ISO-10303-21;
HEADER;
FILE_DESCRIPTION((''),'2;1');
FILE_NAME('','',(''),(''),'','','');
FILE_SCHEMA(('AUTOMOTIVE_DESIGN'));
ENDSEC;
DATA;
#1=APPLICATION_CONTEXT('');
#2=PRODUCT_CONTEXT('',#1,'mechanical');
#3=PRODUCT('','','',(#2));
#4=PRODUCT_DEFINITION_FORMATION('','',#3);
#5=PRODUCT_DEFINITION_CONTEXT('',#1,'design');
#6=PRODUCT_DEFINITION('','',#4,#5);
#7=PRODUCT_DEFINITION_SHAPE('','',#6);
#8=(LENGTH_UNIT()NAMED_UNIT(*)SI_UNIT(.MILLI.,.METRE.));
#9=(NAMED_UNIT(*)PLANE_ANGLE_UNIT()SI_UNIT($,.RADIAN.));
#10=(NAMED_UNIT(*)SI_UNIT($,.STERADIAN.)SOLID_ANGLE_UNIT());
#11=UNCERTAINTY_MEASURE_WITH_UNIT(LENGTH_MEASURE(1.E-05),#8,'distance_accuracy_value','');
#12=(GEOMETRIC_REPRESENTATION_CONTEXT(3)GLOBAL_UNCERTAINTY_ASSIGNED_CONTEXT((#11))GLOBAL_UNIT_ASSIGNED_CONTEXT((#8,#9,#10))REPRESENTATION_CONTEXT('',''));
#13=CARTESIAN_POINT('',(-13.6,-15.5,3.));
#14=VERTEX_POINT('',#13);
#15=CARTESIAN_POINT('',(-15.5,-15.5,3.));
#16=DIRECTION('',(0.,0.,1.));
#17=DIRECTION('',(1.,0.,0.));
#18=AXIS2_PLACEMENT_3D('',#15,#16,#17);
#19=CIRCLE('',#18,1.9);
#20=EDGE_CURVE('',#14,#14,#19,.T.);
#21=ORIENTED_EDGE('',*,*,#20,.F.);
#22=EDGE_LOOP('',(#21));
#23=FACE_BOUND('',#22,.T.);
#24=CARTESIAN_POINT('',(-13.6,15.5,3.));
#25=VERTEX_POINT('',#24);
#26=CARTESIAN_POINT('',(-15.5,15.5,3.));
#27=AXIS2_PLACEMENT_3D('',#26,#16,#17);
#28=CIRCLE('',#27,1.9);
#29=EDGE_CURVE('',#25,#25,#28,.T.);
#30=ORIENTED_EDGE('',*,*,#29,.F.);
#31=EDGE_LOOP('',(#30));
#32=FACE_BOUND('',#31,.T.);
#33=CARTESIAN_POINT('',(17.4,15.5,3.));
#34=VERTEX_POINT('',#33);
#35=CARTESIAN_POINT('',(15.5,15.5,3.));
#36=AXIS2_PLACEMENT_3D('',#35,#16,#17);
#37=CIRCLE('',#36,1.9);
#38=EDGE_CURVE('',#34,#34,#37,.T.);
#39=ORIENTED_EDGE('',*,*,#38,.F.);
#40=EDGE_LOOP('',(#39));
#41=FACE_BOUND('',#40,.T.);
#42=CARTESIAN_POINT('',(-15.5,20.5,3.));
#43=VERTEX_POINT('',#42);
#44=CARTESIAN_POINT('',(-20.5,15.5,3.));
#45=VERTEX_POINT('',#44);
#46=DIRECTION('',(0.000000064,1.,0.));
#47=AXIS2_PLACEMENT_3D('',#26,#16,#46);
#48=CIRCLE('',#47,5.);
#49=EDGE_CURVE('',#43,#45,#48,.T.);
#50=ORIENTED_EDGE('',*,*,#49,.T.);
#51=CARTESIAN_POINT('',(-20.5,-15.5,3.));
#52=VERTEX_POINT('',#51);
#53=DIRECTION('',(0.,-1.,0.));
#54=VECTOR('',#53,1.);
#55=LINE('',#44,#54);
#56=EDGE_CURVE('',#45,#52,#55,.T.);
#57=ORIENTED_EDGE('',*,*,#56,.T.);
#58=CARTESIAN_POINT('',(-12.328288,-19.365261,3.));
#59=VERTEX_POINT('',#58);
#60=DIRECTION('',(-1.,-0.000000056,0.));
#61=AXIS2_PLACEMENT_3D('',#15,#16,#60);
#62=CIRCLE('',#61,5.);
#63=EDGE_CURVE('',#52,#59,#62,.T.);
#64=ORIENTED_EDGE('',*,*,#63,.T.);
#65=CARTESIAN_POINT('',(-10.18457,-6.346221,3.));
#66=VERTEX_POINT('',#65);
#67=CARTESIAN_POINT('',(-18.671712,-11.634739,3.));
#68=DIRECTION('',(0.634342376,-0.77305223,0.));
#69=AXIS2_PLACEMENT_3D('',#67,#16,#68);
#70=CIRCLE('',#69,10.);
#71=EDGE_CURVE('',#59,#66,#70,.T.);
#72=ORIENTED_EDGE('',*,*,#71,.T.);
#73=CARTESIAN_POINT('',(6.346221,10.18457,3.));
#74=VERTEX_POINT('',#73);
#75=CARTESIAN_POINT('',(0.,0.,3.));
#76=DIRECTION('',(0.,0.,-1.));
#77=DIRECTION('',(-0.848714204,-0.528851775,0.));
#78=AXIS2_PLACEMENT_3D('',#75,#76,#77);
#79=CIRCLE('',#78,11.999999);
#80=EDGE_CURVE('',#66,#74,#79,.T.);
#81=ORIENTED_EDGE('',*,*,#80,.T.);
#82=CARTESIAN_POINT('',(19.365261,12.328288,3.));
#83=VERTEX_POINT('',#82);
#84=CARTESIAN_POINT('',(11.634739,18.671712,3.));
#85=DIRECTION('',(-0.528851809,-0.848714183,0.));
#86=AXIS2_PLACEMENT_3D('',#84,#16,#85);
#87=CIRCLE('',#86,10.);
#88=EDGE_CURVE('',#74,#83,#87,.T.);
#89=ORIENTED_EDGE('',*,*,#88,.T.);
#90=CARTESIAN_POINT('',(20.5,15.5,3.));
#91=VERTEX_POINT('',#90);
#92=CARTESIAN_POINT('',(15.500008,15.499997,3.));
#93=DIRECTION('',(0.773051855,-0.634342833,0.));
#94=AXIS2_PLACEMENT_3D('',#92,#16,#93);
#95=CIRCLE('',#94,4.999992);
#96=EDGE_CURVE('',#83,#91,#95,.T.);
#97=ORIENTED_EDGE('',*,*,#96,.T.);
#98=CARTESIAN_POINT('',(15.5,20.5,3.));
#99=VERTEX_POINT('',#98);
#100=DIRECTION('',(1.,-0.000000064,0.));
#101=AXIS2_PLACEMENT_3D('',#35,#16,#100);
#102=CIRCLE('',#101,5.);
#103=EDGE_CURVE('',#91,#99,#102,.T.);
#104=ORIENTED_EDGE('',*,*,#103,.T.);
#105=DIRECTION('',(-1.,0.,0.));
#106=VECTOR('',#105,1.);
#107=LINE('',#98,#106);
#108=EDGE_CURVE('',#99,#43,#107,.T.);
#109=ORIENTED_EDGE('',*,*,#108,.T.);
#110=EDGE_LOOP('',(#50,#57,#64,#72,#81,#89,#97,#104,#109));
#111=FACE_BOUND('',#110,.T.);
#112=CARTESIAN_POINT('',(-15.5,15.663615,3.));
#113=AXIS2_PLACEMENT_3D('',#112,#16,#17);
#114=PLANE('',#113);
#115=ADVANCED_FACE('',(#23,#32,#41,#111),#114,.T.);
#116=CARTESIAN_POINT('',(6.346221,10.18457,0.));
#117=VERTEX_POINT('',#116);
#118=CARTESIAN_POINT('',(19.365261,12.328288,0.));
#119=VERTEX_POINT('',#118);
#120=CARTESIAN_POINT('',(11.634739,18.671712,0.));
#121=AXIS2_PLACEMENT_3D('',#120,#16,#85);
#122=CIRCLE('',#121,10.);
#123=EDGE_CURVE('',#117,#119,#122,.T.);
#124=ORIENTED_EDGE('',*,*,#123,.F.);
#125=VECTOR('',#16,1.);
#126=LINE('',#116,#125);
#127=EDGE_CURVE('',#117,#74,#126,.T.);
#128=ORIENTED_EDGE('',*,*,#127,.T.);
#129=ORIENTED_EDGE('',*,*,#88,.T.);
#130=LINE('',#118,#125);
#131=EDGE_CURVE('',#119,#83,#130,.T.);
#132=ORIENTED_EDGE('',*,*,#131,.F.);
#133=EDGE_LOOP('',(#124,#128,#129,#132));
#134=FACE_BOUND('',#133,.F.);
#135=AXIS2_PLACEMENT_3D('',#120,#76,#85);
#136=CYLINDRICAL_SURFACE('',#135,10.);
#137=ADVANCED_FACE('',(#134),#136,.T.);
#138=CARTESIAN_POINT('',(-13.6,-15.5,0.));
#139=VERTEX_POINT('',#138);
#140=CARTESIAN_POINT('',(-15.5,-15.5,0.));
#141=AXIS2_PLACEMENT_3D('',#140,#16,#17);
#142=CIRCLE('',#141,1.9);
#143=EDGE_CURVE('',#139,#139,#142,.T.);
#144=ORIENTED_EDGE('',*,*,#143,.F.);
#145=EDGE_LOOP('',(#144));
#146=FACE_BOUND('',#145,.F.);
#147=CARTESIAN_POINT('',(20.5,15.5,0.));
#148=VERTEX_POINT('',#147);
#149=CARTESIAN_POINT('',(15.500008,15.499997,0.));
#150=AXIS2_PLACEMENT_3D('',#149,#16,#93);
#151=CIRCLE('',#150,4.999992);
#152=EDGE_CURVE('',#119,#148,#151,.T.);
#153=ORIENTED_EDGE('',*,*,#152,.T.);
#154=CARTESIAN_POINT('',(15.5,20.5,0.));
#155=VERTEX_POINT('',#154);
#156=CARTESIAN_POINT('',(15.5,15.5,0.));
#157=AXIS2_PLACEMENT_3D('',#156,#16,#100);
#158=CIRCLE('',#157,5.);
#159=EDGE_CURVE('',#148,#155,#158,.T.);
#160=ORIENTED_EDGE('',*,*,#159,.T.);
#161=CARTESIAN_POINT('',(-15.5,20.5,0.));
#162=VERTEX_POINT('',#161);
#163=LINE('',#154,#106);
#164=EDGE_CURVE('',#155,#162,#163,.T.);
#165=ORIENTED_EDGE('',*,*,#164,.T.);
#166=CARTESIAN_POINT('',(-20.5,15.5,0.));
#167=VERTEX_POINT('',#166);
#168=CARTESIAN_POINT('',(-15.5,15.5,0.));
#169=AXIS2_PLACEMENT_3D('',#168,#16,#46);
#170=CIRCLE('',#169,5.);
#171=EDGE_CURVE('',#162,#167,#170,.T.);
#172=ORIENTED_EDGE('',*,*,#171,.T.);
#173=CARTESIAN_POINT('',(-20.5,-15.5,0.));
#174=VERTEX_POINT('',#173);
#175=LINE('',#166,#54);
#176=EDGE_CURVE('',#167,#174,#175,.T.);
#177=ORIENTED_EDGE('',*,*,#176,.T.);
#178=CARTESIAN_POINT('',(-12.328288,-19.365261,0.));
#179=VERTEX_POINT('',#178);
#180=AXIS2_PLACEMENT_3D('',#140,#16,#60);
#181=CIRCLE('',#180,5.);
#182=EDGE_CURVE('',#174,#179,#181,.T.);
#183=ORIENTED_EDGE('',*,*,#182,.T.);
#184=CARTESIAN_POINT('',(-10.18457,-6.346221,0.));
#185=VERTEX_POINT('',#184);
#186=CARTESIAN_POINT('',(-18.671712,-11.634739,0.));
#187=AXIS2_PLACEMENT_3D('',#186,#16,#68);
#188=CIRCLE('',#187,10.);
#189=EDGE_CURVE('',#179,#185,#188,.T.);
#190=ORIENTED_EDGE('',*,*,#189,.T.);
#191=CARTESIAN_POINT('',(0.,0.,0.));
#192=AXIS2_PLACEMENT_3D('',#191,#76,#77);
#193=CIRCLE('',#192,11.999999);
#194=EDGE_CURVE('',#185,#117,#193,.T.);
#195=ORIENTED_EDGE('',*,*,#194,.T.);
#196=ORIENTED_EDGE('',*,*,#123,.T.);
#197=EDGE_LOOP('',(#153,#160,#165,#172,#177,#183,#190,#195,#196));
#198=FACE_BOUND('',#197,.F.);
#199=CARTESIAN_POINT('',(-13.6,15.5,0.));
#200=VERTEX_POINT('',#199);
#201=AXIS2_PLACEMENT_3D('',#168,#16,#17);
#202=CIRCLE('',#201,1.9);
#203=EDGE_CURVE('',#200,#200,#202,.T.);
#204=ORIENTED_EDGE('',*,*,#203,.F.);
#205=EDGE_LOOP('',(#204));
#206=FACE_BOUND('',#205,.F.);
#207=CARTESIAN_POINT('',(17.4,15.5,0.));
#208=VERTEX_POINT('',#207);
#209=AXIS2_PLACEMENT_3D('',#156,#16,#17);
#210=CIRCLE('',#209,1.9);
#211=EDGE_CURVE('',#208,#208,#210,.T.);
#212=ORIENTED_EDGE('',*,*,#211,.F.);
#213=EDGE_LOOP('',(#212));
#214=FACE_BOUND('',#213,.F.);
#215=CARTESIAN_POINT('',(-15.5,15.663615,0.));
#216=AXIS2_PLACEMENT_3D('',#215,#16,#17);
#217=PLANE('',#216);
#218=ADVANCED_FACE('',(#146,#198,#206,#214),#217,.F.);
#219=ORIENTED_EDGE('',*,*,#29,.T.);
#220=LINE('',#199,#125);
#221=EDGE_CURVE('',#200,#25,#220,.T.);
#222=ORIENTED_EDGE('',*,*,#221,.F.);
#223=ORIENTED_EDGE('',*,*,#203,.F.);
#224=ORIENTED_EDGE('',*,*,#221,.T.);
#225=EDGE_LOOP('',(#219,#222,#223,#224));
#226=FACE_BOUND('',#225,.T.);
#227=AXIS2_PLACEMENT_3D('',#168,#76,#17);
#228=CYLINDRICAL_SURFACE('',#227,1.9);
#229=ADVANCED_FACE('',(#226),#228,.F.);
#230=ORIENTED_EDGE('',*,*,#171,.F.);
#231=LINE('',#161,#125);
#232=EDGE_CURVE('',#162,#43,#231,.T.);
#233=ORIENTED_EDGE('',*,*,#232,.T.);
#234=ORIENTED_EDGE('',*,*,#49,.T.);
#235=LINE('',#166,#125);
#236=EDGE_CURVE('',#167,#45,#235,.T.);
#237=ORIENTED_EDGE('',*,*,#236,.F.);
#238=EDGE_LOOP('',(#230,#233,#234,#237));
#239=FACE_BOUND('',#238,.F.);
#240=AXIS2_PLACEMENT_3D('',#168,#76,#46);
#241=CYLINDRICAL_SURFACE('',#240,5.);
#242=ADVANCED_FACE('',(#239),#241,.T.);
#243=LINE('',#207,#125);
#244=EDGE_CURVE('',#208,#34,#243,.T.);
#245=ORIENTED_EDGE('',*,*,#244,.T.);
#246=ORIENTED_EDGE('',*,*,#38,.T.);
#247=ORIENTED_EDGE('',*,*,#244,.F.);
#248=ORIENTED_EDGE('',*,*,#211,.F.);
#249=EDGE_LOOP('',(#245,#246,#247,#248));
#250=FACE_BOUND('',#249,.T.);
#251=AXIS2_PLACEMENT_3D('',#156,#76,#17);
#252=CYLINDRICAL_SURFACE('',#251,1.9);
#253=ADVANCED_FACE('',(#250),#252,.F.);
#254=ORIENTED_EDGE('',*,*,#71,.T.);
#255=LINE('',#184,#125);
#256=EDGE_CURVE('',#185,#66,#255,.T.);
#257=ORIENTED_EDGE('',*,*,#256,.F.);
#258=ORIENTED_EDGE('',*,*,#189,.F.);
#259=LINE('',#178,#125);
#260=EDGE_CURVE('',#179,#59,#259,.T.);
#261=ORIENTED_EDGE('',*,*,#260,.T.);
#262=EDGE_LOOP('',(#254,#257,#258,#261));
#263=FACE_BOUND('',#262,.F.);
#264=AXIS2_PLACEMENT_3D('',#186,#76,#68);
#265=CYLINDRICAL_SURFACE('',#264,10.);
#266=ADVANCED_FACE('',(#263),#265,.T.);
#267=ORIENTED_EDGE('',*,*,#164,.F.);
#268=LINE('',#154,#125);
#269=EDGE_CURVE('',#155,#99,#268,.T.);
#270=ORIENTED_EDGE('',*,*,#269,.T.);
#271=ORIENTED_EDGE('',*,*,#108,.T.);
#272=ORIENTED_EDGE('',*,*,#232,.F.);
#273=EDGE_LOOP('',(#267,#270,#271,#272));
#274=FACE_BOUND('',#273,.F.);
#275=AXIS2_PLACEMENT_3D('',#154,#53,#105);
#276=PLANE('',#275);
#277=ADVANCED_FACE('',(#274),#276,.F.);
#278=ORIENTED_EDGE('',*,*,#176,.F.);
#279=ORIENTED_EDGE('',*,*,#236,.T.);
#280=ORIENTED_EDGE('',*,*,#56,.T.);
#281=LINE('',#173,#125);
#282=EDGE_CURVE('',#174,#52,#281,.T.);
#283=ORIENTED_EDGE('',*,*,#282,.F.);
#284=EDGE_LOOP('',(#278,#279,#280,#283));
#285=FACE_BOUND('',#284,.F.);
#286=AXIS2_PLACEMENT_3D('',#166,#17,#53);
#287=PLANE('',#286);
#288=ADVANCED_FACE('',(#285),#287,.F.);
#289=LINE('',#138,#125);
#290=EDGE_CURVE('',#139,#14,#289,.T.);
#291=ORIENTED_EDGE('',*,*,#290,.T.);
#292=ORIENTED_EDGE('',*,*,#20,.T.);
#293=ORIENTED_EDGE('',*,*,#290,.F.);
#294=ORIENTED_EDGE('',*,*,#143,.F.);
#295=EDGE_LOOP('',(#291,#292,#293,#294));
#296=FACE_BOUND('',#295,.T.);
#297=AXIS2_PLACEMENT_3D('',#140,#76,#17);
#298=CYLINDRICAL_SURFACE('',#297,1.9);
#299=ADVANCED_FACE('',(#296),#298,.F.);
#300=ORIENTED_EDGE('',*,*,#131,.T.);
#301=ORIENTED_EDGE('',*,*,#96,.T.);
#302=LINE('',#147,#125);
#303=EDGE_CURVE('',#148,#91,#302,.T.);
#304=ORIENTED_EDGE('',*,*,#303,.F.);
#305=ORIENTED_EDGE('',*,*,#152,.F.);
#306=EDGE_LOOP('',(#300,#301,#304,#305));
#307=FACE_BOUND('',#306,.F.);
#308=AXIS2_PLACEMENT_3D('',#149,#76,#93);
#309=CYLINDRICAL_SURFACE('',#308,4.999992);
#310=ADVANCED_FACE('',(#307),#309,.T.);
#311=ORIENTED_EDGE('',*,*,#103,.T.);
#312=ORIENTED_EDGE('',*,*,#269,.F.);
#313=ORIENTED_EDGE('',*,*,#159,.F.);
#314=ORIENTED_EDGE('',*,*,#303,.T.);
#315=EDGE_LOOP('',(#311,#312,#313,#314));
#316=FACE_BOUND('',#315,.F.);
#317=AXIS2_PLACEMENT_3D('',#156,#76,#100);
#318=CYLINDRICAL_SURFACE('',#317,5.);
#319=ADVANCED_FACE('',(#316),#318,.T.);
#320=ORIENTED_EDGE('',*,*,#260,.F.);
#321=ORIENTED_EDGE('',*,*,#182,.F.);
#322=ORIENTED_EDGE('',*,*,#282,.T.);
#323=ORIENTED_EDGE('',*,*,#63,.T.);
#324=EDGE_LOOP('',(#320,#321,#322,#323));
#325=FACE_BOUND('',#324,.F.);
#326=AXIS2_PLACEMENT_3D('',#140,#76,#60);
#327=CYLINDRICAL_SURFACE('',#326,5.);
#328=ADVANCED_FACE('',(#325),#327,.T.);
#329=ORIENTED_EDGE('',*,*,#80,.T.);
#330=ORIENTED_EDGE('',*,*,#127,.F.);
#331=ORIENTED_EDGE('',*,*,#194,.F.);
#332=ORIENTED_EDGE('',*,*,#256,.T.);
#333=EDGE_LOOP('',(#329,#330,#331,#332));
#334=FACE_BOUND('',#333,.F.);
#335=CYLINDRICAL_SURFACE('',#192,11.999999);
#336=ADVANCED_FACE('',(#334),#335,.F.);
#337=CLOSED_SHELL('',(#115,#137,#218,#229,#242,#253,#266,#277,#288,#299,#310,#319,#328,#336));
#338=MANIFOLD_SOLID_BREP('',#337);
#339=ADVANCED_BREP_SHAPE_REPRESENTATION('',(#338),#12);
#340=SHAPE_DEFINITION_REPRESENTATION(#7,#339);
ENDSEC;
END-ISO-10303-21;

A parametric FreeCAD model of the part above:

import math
import FreeCAD as App
import Part
import Sketcher

doc = App.newDocument("Part")
body = doc.addObject("PartDesign::Body", "Body")

# Sketch on XY plane
sketch1 = body.newObject("Sketcher::SketchObject", "Sketch")
sketch1.AttachmentSupport = (doc.getObject("XY_Plane"), [""])
sketch1.MapMode = "FlatFace"
sketch1.addGeometry([
    Part.ArcOfCircle(Part.Circle(App.Vector(-15.5, 15.5, 0), App.Vector(0, 0, 1), 5), math.radians(89.999996), math.radians(180.000004)),  # 0
    Part.LineSegment(App.Vector(-20.5, 15.5, 0), App.Vector(-20.5, -15.5, 0)),  # 1
    Part.ArcOfCircle(Part.Circle(App.Vector(-15.5, -15.5, 0), App.Vector(0, 0, 1), 5), math.radians(-179.999997), math.radians(-50.628774)),  # 2
    Part.ArcOfCircle(Part.Circle(App.Vector(-18.671712, -11.634739, 0), App.Vector(0, 0, 1), 10), math.radians(-50.628773), math.radians(31.927909)),  # 3
    Part.ArcOfCircle(Part.Circle(App.Vector(0, 0, 0), App.Vector(0, 0, 1), 11.999999), math.radians(58.072093), math.radians(211.927907)),  # 4
    Part.ArcOfCircle(Part.Circle(App.Vector(11.634739, 18.671712, 0), App.Vector(0, 0, 1), 10), math.radians(-121.927909), math.radians(-39.371227)),  # 5
    Part.ArcOfCircle(Part.Circle(App.Vector(15.500008, 15.499997, 0), App.Vector(0, 0, 1), 4.999992), math.radians(-39.371261), math.radians(0.00003)),  # 6
    Part.ArcOfCircle(Part.Circle(App.Vector(15.5, 15.5, 0), App.Vector(0, 0, 1), 5), math.radians(-0.000004), math.radians(90.000004)),  # 7
    Part.LineSegment(App.Vector(15.5, 20.5, 0), App.Vector(-15.5, 20.5, 0)),  # 8
    Part.Circle(App.Vector(-15.5, -15.5, 0), App.Vector(0, 0, 1), 1.9),  # 9
    Part.Circle(App.Vector(-15.5, 15.5, 0), App.Vector(0, 0, 1), 1.9),  # 10
    Part.Circle(App.Vector(15.5, 15.5, 0), App.Vector(0, 0, 1), 1.9),  # 11
], False)
sketch1.addConstraint([
    Sketcher.Constraint("Tangent", 0, 2, 1, 1),
    Sketcher.Constraint("Tangent", 1, 2, 2, 1),
    Sketcher.Constraint("Tangent", 2, 2, 3, 1),
    Sketcher.Constraint("Tangent", 3, 2, 4, 2),
    Sketcher.Constraint("Tangent", 4, 1, 5, 1),
    Sketcher.Constraint("Tangent", 5, 2, 6, 1),
    Sketcher.Constraint("Tangent", 6, 2, 7, 1),
    Sketcher.Constraint("Tangent", 7, 2, 8, 1),
    Sketcher.Constraint("Tangent", 8, 2, 0, 1),
    Sketcher.Constraint("Vertical", 1),
    Sketcher.Constraint("Horizontal", 8),
    Sketcher.Constraint("Coincident", 4, 3, -1, 1),
    Sketcher.Constraint("Coincident", 9, 3, 2, 3),
    Sketcher.Constraint("Coincident", 10, 3, 0, 3),
    Sketcher.Constraint("Coincident", 11, 3, 6, 3),
    Sketcher.Constraint("Equal", 0, 2),
    Sketcher.Constraint("Equal", 3, 5),
    Sketcher.Constraint("Equal", 2, 7),
    Sketcher.Constraint("Equal", 9, 10),
    Sketcher.Constraint("Equal", 10, 11),
    Sketcher.Constraint("Symmetric", 2, 3, 6, 3, -1, 1),
    Sketcher.Constraint("Symmetric", 1, 2, 6, 2, -1, 1),
    Sketcher.Constraint("Equal", 8, 1),
    Sketcher.Constraint("Radius", 0, 5.0),
    Sketcher.Constraint("Radius", 3, 10.0),
    Sketcher.Constraint("Radius", 4, 11.999999),
    Sketcher.Constraint("Diameter", 9, 3.8),
    Sketcher.Constraint("DistanceX", 8, 2, 8, 1, 31.0),
])
pad1 = body.newObject("PartDesign::Pad", "Pad")
pad1.Profile = sketch1
pad1.Length = 3

doc.recompute()
